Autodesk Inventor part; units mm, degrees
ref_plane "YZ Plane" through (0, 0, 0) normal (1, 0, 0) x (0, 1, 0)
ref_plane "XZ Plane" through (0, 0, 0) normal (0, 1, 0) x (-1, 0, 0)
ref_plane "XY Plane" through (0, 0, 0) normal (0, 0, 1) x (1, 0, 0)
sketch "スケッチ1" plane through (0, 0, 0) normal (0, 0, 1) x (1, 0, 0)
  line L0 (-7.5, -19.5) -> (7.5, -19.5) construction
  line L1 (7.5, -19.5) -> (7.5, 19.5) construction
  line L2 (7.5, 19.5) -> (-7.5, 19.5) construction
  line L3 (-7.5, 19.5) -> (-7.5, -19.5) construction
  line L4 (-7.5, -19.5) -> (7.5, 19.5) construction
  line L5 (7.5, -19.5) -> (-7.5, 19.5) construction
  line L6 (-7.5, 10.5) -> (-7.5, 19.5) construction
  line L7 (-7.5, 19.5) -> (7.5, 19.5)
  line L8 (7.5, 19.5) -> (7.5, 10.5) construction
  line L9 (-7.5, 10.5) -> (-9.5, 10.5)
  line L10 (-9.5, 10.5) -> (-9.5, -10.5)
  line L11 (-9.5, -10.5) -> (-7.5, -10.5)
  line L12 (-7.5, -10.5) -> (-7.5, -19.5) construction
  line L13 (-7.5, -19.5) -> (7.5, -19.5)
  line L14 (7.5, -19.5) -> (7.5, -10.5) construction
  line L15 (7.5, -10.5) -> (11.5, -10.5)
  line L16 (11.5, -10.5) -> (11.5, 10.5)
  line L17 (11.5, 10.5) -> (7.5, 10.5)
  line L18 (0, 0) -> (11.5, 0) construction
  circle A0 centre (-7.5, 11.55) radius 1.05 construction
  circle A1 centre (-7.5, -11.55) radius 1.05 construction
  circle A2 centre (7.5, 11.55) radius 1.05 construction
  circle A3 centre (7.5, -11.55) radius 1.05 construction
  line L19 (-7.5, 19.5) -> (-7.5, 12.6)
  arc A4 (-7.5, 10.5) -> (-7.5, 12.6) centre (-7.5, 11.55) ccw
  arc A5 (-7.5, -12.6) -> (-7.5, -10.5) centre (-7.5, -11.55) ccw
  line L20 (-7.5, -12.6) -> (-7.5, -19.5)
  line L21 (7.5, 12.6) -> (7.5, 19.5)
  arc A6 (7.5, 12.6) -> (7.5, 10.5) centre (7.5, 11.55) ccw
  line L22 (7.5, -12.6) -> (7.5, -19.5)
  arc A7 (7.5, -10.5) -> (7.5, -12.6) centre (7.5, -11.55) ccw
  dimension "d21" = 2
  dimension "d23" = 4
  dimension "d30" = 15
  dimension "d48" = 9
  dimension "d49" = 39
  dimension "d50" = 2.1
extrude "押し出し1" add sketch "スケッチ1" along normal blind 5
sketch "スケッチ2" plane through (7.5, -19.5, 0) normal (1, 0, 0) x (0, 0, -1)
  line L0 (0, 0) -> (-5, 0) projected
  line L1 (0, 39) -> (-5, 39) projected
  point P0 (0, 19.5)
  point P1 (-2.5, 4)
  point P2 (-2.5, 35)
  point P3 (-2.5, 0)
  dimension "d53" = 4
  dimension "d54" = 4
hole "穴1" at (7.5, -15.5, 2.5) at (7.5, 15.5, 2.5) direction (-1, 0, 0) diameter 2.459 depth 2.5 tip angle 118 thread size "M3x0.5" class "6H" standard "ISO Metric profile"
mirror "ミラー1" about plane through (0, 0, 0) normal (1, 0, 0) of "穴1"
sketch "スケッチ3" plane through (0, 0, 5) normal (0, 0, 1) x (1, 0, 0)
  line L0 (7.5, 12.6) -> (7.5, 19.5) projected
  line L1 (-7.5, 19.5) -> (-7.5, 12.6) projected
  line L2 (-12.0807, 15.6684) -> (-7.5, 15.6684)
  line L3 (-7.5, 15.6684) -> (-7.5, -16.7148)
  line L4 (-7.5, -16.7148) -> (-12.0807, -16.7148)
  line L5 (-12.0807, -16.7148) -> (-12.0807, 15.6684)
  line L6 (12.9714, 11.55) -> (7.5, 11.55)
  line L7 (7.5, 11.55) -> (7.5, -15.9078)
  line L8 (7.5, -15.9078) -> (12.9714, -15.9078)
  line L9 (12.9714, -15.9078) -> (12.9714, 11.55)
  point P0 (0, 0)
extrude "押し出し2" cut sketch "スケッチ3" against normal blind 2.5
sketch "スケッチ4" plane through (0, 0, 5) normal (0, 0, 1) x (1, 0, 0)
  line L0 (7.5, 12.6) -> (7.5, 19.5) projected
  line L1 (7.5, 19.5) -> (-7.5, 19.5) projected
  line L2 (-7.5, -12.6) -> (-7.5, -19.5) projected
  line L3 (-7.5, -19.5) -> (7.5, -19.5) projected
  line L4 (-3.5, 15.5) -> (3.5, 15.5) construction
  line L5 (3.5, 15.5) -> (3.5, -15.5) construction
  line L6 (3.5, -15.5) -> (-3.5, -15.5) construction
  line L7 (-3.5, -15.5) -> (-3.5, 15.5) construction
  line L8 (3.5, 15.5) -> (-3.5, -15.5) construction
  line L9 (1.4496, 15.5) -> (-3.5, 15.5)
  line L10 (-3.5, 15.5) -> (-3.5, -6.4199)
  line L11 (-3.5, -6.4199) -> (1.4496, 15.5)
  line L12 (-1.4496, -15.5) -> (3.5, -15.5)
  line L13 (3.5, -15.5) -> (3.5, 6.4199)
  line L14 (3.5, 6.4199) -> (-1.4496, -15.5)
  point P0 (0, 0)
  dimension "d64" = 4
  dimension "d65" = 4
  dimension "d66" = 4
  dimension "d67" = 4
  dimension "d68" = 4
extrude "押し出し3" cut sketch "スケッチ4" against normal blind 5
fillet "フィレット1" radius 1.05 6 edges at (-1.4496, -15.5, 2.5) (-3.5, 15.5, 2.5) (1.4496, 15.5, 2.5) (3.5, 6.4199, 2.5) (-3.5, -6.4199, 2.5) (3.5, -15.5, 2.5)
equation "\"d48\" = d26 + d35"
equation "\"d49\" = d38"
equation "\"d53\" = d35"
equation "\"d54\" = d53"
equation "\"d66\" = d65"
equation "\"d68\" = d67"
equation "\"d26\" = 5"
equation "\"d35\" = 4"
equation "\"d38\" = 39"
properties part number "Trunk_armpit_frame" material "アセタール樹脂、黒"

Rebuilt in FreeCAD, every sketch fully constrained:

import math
import FreeCAD as App
import Part
import Sketcher
Q = App.Units.Quantity


def edges_at(feature, points):
    """Names of the edges that pass closest to the given points."""
    edges = feature.Shape.Edges
    near = lambda p: min(range(len(edges)), key=lambda i: edges[i].distToShape(Part.Vertex(*p))[0])
    return sorted({f"Edge{near(p) + 1}" for p in points})


def add_polygon(sketch, points):
    """Adds a closed chain of lines whose ends are joined by coincident constraints."""
    first, n = sketch.GeometryCount, len(points)
    for a, b in zip(points, points[1:] + points[:1]):
        sketch.addGeometry(Part.LineSegment(App.Vector(*a, 0), App.Vector(*b, 0)), False)
    for i in range(n):
        sketch.addConstraint(Sketcher.Constraint("Coincident", first + i, 2, first + (i + 1) % n, 1))

doc = App.newDocument("Part")
params = doc.addObject("Spreadsheet::Sheet", "Params")
for row, (alias, value) in enumerate([
    ("sketch1_width", "15 mm"),
    ("sketch1_width2", "2 mm"),
    ("sketch1_width3", "4 mm"),
    ("sketch1_radius", "1.05 mm"),
    ("sketch1_height", "21 mm"),
    ("pad1_length", "5 mm"),
    ("hole_diameter", "2.459 mm"),
    ("hole_depth", "2.5 mm"),
    ("pocket1_length", "2.5 mm"),
    ("sketch4_height", "21.92 mm"),
    ("pocket2_length", "5 mm"),
    ("fillet_radius", "1.05 mm"),
], start=1):
    params.set(f"A{row}", alias)
    params.set(f"B{row}", "=" + value)
    params.setAlias(f"B{row}", alias)

body = doc.addObject("PartDesign::Body", "Body")

# Sketch on XY plane
sketch1 = doc.addObject("Sketcher::SketchObject", "Sketch")
body.addObject(sketch1)
sketch1.AttachmentSupport = (doc.XY_Plane, [""])
sketch1.MapMode = "FlatFace"
sketch1.addGeometry([
    Part.LineSegment(App.Vector(7.5, 19.5, 0), App.Vector(-7.5, 19.5, 0)),  # 0
    Part.LineSegment(App.Vector(-7.5, 19.5, 0), App.Vector(-7.5, 12.6, 0)),  # 1
    Part.ArcOfCircle(Part.Circle(App.Vector(-7.5, 11.6, 0), App.Vector(0, 0, 1), 1.1), math.radians(-90), math.radians(90)),  # 2
    Part.LineSegment(App.Vector(-7.5, 10.5, 0), App.Vector(-9.5, 10.5, 0)),  # 3
    Part.LineSegment(App.Vector(-9.5, 10.5, 0), App.Vector(-9.5, -10.5, 0)),  # 4
    Part.LineSegment(App.Vector(-9.5, -10.5, 0), App.Vector(-7.5, -10.5, 0)),  # 5
    Part.ArcOfCircle(Part.Circle(App.Vector(-7.5, -11.6, 0), App.Vector(0, 0, 1), 1.1), math.radians(-90), math.radians(90)),  # 6
    Part.LineSegment(App.Vector(-7.5, -12.6, 0), App.Vector(-7.5, -19.5, 0)),  # 7
    Part.LineSegment(App.Vector(-7.5, -19.5, 0), App.Vector(7.5, -19.5, 0)),  # 8
    Part.LineSegment(App.Vector(7.5, -19.5, 0), App.Vector(7.5, -12.6, 0)),  # 9
    Part.ArcOfCircle(Part.Circle(App.Vector(7.5, -11.6, 0), App.Vector(0, 0, 1), 1.1), math.radians(90), math.radians(270)),  # 10
    Part.LineSegment(App.Vector(7.5, -10.5, 0), App.Vector(11.5, -10.5, 0)),  # 11
    Part.LineSegment(App.Vector(11.5, -10.5, 0), App.Vector(11.5, 10.5, 0)),  # 12
    Part.LineSegment(App.Vector(11.5, 10.5, 0), App.Vector(7.5, 10.5, 0)),  # 13
    Part.ArcOfCircle(Part.Circle(App.Vector(7.5, 11.6, 0), App.Vector(0, 0, 1), 1.1), math.radians(90), math.radians(270)),  # 14
    Part.LineSegment(App.Vector(7.5, 12.6, 0), App.Vector(7.5, 19.5, 0)),  # 15
], False)
sketch1.addConstraint([
    Sketcher.Constraint("Coincident", 0, 2, 1, 1),
    Sketcher.Constraint("Coincident", 1, 2, 2, 2),
    Sketcher.Constraint("Tangent", 2, 1, 3, 1),
    Sketcher.Constraint("Coincident", 3, 2, 4, 1),
    Sketcher.Constraint("Coincident", 4, 2, 5, 1),
    Sketcher.Constraint("Tangent", 5, 2, 6, 2),
    Sketcher.Constraint("Coincident", 6, 1, 7, 1),
    Sketcher.Constraint("Coincident", 7, 2, 8, 1),
    Sketcher.Constraint("Coincident", 8, 2, 9, 1),
    Sketcher.Constraint("Coincident", 9, 2, 10, 2),
    Sketcher.Constraint("Tangent", 10, 1, 11, 1),
    Sketcher.Constraint("Coincident", 11, 2, 12, 1),
    Sketcher.Constraint("Coincident", 12, 2, 13, 1),
    Sketcher.Constraint("Tangent", 13, 2, 14, 2),
    Sketcher.Constraint("Coincident", 14, 1, 15, 1),
    Sketcher.Constraint("Coincident", 15, 2, 0, 1),
    Sketcher.Constraint("Horizontal", 0),
    Sketcher.Constraint("Vertical", 1),
    Sketcher.Constraint("Horizontal", 3),
    Sketcher.Constraint("Vertical", 4),
    Sketcher.Constraint("Horizontal", 5),
    Sketcher.Constraint("Vertical", 7),
    Sketcher.Constraint("Horizontal", 8),
    Sketcher.Constraint("Vertical", 9),
    Sketcher.Constraint("Horizontal", 11),
    Sketcher.Constraint("Vertical", 12),
    Sketcher.Constraint("Horizontal", 13),
    Sketcher.Constraint("Vertical", 15),
    Sketcher.Constraint("Equal", 2, 6),
    Sketcher.Constraint("Equal", 6, 10),
    Sketcher.Constraint("Equal", 10, 14),
    Sketcher.Constraint("Symmetric", 2, 3, 10, 3, -1, 1),
    Sketcher.Constraint("Symmetric", 6, 3, 14, 3, -1, 1),
    Sketcher.Constraint("Symmetric", 0, 2, 8, 2, -1, 1),
    Sketcher.Constraint("Symmetric", 6, 3, 10, 3, -2),
    Sketcher.Constraint("Vertical", 6, 3, 0, 2),
    Sketcher.Constraint("Vertical", 5, 2, 6, 1),
    Sketcher.Constraint("Vertical", 13, 2, 14, 1),
    Sketcher.Constraint("DistanceX", 0, 2, 0, 1, Q("15 mm")),
    Sketcher.Constraint("DistanceX", 3, 2, 3, 1, Q("2 mm")),
    Sketcher.Constraint("DistanceX", 11, 1, 11, 2, Q("4 mm")),
    Sketcher.Constraint("Radius", 2, Q("1.05 mm")),
    Sketcher.Constraint("DistanceY", 2, 1, 0, 2, Q("9 mm")),
    Sketcher.Constraint("DistanceY", 4, 2, 4, 1, Q("21 mm")),
])
sketch1.setExpression("Constraints[38]", "Params.sketch1_width")
sketch1.setExpression("Constraints[39]", "Params.sketch1_width2")
sketch1.setExpression("Constraints[40]", "Params.sketch1_width3")
sketch1.setExpression("Constraints[41]", "Params.sketch1_radius")
sketch1.setExpression("Constraints[43]", "Params.sketch1_height")
pad1 = doc.addObject("PartDesign::Pad", "Pad")
body.addObject(pad1)
pad1.Profile = sketch1
pad1.setExpression("Length", "Params.pad1_length")

# Sketch on YZ plane
sketch2 = doc.addObject("Sketcher::SketchObject", "Sketch001")
body.addObject(sketch2)
sketch2.AttachmentSupport = (doc.YZ_Plane, [""])
sketch2.MapMode = "FlatFace"
sketch2.AttachmentOffset = App.Placement(App.Vector(0, 0, 7.5), App.Rotation())
sketch2.addGeometry([
    Part.Circle(App.Vector(-15.5, 2.5, 0), App.Vector(0, 0, 1), 1.2),
    Part.Circle(App.Vector(15.5, 2.5, 0), App.Vector(0, 0, 1), 1.2),
], False)
sketch2.addConstraint([
    Sketcher.Constraint("Equal", 0, 1),
    Sketcher.Constraint("Symmetric", 0, 3, 1, 3, -2),
    Sketcher.Constraint("Diameter", 0, Q("2.459 mm")),
    Sketcher.Constraint("DistanceX", 0, 3, 1, 3, Q("31 mm")),
    Sketcher.Constraint("DistanceY", -1, 1, 0, 3, Q("2.5 mm")),
])
doc.recompute()
hole = doc.addObject("PartDesign::Hole", "Hole")
body.addObject(hole)
hole.Profile = sketch2
hole.ThreadType = "None"
hole.setExpression("Diameter", "Params.hole_diameter")
hole.DepthType = "Dimension"
hole.setExpression("Depth", "Params.hole_depth")
hole.DrillPoint = "Angled"
hole.DrillPointAngle = 118
doc.recompute()

mirrored = doc.addObject("PartDesign::Mirrored", "Mirrored")
body.addObject(mirrored)
mirrored.Originals = [hole]
mirrored.MirrorPlane = (doc.YZ_Plane, [""])
body.Tip = mirrored

# Sketch on XY plane
sketch3 = doc.addObject("Sketcher::SketchObject", "Sketch002")
body.addObject(sketch3)
sketch3.AttachmentSupport = (doc.XY_Plane, [""])
sketch3.MapMode = "FlatFace"
sketch3.AttachmentOffset = App.Placement(App.Vector(0, 0, 5), App.Rotation())
add_polygon(sketch3, [(-7.5, -16.7), (-7.5, 15.7), (-12.1, 15.7), (-12.1, -16.7)])  # lines 0-3
add_polygon(sketch3, [(13, -15.9), (13, 11.6), (7.5, 11.6), (7.5, -15.9)])  # lines 4-7
sketch3.addConstraint([
    Sketcher.Constraint("Vertical", 0),
    Sketcher.Constraint("Horizontal", 1),
    Sketcher.Constraint("Vertical", 2),
    Sketcher.Constraint("Horizontal", 3),
    Sketcher.Constraint("Vertical", 4),
    Sketcher.Constraint("Horizontal", 5),
    Sketcher.Constraint("Vertical", 6),
    Sketcher.Constraint("Horizontal", 7),
    Sketcher.Constraint("DistanceX", 0, 2, 5, 2, Q("15 mm")),
    Sketcher.Constraint("DistanceX", 0, 2, -1, 1, Q("7.5 mm")),
    Sketcher.Constraint("DistanceY", -1, 1, 4, 2, Q("11.55 mm")),
    Sketcher.Constraint("DistanceX", 1, 2, 1, 1, Q("4.5807 mm")),
    Sketcher.Constraint("DistanceX", 5, 2, 5, 1, Q("5.4714 mm")),
    Sketcher.Constraint("DistanceY", 0, 1, 0, 2, Q("32.3832 mm")),
    Sketcher.Constraint("DistanceY", 4, 1, 4, 2, Q("27.4578 mm")),
    Sketcher.Constraint("DistanceY", 3, 2, 6, 2, Q("0.807 mm")),
])
pocket1 = doc.addObject("PartDesign::Pocket", "Pocket")
body.addObject(pocket1)
pocket1.Profile = sketch3
pocket1.setExpression("Length", "Params.pocket1_length")

# Sketch on XY plane
sketch4 = doc.addObject("Sketcher::SketchObject", "Sketch003")
body.addObject(sketch4)
sketch4.AttachmentSupport = (doc.XY_Plane, [""])
sketch4.MapMode = "FlatFace"
sketch4.AttachmentOffset = App.Placement(App.Vector(0, 0, 5), App.Rotation())
add_polygon(sketch4, [(-3.5, -6.4), (1.4, 15.5), (-3.5, 15.5)])  # lines 0-2
add_polygon(sketch4, [(3.5, 6.4), (-1.4, -15.5), (3.5, -15.5)])  # lines 3-5
sketch4.addConstraint([
    Sketcher.Constraint("Horizontal", 1),
    Sketcher.Constraint("Vertical", 2),
    Sketcher.Constraint("Horizontal", 4),
    Sketcher.Constraint("Vertical", 5),
    Sketcher.Constraint("Symmetric", 0, 2, 3, 2, -1, 1),
    Sketcher.Constraint("Symmetric", 2, 2, 5, 2, -1, 1),
    Sketcher.Constraint("DistanceY", 3, 2, 1, 2, Q("31 mm")),
    Sketcher.Constraint("DistanceX", 2, 2, 4, 2, Q("7 mm")),
    Sketcher.Constraint("DistanceY", 2, 2, 2, 1, Q("21.92 mm")),
    Sketcher.Constraint("DistanceX", 1, 2, 1, 1, Q("4.9496 mm")),
])
sketch4.setExpression("Constraints[14]", "Params.sketch4_height")
pocket2 = doc.addObject("PartDesign::Pocket", "Pocket001")
body.addObject(pocket2)
pocket2.Profile = sketch4
pocket2.setExpression("Length", "Params.pocket2_length")
doc.recompute()

fillet = doc.addObject("PartDesign::Fillet", "Fillet")
body.addObject(fillet)
fillet.Base = (pocket2, edges_at(pocket2, [
    (-1.45, -15.5, 2.5),
    (-3.5, 15.5, 2.5),
    (1.45, 15.5, 2.5),
    (3.5, 6.42, 2.5),
    (-3.5, -6.42, 2.5),
    (3.5, -15.5, 2.5),
]))
fillet.setExpression("Radius", "Params.fillet_radius")

doc.recompute()
